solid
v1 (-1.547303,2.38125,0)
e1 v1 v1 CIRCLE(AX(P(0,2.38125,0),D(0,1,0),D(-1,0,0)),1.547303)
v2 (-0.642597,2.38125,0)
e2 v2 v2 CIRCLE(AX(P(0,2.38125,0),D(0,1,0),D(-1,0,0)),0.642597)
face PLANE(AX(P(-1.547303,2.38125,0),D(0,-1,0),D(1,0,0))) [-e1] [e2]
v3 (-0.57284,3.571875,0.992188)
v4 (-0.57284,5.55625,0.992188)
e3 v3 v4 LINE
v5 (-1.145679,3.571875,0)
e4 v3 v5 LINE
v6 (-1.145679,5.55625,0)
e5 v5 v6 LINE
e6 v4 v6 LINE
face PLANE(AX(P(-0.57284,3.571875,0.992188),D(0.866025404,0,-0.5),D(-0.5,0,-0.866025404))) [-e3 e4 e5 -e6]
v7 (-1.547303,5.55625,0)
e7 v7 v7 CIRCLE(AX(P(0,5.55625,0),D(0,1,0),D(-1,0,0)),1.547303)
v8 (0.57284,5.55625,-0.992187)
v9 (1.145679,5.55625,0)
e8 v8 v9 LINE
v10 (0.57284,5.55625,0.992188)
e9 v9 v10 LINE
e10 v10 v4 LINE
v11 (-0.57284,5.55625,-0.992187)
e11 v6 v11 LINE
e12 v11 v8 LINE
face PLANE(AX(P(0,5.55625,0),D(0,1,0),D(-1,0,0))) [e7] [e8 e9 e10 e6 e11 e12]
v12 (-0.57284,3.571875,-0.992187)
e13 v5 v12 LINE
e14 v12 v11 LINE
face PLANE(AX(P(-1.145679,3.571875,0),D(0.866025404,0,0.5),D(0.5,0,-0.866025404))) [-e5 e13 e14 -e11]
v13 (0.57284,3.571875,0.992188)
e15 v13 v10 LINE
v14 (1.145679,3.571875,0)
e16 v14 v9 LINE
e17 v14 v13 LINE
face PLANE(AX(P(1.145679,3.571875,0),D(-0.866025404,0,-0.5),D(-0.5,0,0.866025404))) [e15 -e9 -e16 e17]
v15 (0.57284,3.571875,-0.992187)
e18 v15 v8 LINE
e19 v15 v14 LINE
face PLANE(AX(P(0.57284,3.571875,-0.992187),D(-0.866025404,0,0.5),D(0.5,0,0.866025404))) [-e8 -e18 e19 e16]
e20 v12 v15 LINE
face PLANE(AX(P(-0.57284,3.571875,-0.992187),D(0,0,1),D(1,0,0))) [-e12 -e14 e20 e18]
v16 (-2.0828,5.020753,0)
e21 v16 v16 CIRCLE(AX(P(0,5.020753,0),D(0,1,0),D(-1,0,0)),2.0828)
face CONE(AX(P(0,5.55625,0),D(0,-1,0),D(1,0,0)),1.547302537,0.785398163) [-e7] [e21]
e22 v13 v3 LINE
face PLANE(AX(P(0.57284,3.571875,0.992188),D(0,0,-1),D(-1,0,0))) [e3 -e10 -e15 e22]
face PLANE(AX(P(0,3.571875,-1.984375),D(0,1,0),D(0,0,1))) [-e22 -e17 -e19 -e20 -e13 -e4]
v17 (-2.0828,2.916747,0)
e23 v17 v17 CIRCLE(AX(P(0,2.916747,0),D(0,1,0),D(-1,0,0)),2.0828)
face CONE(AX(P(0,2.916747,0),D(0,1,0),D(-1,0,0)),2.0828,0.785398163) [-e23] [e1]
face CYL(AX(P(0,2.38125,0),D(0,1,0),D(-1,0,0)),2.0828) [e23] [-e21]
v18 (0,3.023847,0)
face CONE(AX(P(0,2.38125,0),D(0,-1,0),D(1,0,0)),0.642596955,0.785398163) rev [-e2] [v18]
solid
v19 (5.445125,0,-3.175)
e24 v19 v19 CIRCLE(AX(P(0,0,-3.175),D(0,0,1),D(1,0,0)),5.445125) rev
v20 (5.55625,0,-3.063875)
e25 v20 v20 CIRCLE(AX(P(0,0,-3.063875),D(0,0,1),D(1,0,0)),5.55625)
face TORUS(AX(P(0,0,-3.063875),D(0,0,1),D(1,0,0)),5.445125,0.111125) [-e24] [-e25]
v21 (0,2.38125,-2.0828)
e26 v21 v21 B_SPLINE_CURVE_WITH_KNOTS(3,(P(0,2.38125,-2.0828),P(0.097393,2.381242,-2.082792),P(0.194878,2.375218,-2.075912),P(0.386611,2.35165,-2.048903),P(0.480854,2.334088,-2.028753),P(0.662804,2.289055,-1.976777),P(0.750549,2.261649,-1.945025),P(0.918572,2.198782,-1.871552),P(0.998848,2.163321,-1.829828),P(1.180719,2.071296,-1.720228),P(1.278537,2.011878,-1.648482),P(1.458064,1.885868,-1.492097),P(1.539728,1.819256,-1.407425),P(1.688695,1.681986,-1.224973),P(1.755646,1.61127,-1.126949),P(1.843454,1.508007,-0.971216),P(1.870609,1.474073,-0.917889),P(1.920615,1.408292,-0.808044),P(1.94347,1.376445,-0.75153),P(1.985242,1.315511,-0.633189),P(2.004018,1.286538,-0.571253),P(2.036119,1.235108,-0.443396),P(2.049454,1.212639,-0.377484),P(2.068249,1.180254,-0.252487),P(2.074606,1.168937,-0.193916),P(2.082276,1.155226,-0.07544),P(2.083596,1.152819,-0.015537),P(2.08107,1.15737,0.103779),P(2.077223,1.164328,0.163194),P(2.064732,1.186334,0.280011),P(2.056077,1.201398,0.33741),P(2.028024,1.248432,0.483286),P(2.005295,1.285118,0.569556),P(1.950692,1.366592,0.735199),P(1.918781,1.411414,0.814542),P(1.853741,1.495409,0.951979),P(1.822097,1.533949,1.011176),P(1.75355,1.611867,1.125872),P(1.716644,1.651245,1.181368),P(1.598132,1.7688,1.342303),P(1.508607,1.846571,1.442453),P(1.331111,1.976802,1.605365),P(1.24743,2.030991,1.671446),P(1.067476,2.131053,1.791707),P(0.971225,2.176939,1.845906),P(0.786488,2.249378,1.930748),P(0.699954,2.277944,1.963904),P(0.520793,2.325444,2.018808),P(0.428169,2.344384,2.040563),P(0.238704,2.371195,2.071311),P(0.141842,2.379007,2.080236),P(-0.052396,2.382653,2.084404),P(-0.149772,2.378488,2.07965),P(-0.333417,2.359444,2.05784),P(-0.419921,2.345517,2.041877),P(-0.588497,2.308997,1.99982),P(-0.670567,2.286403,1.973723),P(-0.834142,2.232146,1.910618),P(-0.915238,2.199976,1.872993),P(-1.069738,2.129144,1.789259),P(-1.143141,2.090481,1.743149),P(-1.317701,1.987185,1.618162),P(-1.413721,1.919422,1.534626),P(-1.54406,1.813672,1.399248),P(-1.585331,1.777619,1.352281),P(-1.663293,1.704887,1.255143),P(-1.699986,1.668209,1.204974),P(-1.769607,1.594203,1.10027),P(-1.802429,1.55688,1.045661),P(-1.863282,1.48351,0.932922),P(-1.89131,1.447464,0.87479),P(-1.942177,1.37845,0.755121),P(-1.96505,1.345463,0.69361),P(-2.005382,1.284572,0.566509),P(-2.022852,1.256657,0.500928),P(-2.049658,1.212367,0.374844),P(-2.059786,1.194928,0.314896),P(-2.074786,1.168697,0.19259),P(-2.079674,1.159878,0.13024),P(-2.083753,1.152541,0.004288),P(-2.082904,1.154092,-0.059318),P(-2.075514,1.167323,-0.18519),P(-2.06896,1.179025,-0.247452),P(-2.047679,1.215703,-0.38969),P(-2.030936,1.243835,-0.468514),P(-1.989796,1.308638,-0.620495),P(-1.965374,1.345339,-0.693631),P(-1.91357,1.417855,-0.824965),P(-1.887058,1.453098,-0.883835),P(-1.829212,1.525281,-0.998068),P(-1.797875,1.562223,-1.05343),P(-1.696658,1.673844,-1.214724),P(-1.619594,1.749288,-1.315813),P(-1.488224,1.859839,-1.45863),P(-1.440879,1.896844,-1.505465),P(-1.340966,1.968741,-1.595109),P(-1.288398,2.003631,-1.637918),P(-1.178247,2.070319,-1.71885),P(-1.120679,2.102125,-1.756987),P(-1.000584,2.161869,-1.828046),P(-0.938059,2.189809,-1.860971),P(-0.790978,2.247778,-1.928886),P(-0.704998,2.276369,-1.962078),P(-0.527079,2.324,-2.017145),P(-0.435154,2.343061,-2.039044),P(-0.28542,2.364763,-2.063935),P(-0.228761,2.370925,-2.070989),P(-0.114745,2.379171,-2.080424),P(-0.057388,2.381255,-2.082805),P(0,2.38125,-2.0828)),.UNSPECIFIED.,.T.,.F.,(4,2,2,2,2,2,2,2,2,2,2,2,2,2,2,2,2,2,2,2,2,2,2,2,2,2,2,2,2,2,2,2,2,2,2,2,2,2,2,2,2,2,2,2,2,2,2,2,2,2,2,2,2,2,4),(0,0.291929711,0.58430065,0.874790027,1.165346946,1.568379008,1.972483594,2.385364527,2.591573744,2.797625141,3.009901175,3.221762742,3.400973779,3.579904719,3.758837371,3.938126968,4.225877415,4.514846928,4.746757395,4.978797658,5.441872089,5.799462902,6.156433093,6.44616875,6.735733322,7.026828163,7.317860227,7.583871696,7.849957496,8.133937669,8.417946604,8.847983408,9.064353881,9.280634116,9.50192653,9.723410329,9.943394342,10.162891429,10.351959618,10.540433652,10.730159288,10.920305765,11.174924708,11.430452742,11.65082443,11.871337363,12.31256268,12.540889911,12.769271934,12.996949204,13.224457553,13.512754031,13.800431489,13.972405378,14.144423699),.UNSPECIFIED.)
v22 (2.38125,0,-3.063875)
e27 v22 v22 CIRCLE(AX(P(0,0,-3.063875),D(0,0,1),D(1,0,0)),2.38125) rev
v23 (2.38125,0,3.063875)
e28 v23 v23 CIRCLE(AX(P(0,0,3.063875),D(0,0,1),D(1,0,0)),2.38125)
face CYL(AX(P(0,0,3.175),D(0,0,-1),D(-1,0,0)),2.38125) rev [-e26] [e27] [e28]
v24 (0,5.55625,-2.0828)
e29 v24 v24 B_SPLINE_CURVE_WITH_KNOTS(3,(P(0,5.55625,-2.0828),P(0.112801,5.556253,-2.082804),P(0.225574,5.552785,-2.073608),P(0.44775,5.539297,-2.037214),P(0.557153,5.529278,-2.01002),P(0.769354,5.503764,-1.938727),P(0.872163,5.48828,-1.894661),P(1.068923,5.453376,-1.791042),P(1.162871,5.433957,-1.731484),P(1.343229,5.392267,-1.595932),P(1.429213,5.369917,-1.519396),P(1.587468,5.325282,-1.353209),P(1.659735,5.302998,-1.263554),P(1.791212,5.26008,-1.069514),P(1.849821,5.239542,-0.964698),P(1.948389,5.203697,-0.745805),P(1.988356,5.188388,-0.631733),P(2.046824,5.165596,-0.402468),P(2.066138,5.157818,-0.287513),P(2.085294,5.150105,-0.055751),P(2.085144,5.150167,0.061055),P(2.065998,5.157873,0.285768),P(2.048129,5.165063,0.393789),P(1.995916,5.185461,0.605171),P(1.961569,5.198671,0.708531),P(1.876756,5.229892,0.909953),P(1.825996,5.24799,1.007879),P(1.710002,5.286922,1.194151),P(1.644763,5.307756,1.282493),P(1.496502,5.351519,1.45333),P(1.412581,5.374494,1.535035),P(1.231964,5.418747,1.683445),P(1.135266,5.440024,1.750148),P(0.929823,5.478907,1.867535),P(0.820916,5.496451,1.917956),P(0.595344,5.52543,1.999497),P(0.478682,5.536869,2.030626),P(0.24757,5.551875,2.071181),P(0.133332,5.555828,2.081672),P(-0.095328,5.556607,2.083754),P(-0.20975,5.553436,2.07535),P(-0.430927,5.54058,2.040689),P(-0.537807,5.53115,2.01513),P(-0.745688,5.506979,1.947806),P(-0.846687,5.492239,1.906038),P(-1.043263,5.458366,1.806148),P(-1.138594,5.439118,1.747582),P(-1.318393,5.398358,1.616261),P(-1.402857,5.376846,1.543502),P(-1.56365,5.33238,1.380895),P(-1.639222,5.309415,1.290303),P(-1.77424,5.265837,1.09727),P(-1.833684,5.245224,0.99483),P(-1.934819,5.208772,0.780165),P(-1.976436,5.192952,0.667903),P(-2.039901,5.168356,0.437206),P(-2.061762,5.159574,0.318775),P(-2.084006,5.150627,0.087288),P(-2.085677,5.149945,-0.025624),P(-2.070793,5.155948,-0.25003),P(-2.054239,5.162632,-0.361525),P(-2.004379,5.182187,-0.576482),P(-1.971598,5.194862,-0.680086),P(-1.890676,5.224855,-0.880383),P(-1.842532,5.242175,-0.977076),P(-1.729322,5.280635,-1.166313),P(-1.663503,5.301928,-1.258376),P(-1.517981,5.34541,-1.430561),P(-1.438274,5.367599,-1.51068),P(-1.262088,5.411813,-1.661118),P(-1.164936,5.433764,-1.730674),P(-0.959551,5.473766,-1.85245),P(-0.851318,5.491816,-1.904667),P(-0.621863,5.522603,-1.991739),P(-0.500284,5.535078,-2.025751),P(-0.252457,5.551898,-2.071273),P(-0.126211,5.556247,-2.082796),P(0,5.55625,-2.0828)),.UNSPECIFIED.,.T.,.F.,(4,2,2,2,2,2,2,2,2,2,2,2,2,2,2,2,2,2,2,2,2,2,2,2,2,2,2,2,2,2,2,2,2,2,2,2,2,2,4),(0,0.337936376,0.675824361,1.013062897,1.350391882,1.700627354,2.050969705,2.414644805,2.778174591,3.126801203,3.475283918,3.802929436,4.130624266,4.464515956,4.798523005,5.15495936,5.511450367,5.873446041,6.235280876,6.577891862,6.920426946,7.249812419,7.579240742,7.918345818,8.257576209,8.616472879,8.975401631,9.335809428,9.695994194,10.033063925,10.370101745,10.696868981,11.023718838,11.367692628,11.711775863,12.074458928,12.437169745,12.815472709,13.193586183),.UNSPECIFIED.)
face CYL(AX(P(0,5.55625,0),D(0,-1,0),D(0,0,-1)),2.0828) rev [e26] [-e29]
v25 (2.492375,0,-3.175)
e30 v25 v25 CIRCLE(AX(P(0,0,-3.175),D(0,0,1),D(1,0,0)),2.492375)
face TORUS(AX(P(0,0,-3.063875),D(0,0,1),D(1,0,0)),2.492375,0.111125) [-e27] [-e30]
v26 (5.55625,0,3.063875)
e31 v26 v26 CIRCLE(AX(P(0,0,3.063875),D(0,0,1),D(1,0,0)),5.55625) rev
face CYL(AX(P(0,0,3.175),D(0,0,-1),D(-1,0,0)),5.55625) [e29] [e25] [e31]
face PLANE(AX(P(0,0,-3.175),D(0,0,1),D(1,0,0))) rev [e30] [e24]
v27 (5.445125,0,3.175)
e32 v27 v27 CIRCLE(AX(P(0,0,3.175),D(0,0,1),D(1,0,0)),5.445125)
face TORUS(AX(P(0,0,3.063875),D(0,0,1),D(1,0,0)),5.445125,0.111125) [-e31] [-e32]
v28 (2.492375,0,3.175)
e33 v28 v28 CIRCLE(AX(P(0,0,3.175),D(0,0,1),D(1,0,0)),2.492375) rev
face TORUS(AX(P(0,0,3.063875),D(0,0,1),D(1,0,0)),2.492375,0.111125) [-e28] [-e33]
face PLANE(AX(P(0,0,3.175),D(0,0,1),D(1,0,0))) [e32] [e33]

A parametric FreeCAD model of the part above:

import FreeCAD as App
import Part
import Sketcher
Q = App.Units.Quantity


def edges_at(feature, points):
    """Names of the edges that pass closest to the given points."""
    edges = feature.Shape.Edges
    near = lambda p: min(range(len(edges)), key=lambda i: edges[i].distToShape(Part.Vertex(*p))[0])
    return sorted({f"Edge{near(p) + 1}" for p in points})


def add_polygon(sketch, points):
    """Adds a closed chain of lines whose ends are joined by coincident constraints."""
    first, n = sketch.GeometryCount, len(points)
    for a, b in zip(points, points[1:] + points[:1]):
        sketch.addGeometry(Part.LineSegment(App.Vector(*a, 0), App.Vector(*b, 0)), False)
    for i in range(n):
        sketch.addConstraint(Sketcher.Constraint("Coincident", first + i, 2, first + (i + 1) % n, 1))

doc = App.newDocument("Part")
params = doc.addObject("Spreadsheet::Sheet", "Params")
for row, (alias, value) in enumerate([
    ("sketch1_diameter", "0.4375 in"),
    ("sketch1_diameter2", "0.1875 in"),
    ("pad1_length", "0.25 in"),
    ("sketch2_diameter", "0.164 in"),
    ("fillet_radius", "0.111125 mm"),
    ("revolution_angle", "360 deg"),
    ("pocket2_length", "0.078125 in"),
], start=1):
    params.set(f"A{row}", alias)
    params.set(f"B{row}", "=" + value)
    params.setAlias(f"B{row}", alias)

body = doc.addObject("PartDesign::Body", "Body")

sketch1 = body.newObject("Sketcher::SketchObject", "Sketch")
sketch1.AttachmentSupport = (doc.getObject("XY_Plane"), [""])
sketch1.MapMode = "FlatFace"
sketch1.addGeometry(Part.Circle(App.Vector(0, 0, 0), App.Vector(0, 0, 1), 5.55625), False)
sketch1.addGeometry(Part.Circle(App.Vector(0, 0, 0), App.Vector(0, 0, 1), 2.38125), False)
sketch1.addConstraint(Sketcher.Constraint("Coincident", 0, 3, -1, 1))
sketch1.addConstraint(Sketcher.Constraint("Coincident", 1, 3, -1, 1))
sketch1.addConstraint(Sketcher.Constraint("Diameter", 0, Q("0.4375 in")))
sketch1.addConstraint(Sketcher.Constraint("Diameter", 1, Q("0.1875 in")))
sketch1.setExpression("Constraints[2]", "Params.sketch1_diameter")
sketch1.setExpression("Constraints[3]", "Params.sketch1_diameter2")
pad1 = body.newObject("PartDesign::Pad", "Pad")
pad1.Profile = sketch1
pad1.setExpression("Length", "Params.pad1_length")
pad1.Midplane = True

sketch2 = body.newObject("Sketcher::SketchObject", "Sketch001")
sketch2.AttachmentSupport = (doc.getObject("XZ_Plane"), [""])
sketch2.MapMode = "FlatFace"
sketch2.addGeometry(Part.Circle(App.Vector(0, 0, 0), App.Vector(0, 0, 1), 2.0828), False)
sketch2.addConstraint(Sketcher.Constraint("Coincident", 0, 3, -1, 1))
sketch2.addConstraint(Sketcher.Constraint("Diameter", 0, Q("0.164 in")))
sketch2.setExpression("Constraints[1]", "Params.sketch2_diameter")
pocket1 = body.newObject("PartDesign::Pocket", "Pocket")
pocket1.Profile = sketch2
pocket1.Type = "ThroughAll"
doc.recompute()

fillet = body.newObject("PartDesign::Fillet", "Fillet")
fillet.Base = (pocket1, edges_at(pocket1, [
    (-5.556, 0, -3.175),
    (-5.556, 0, 3.175),
    (-2.381, 0, -3.175),
    (-2.381, 0, 3.175),
]))
fillet.setExpression("Radius", "Params.fillet_radius")
body2 = doc.addObject("PartDesign::Body", "Body001")

sketch3 = body2.newObject("Sketcher::SketchObject", "Sketch002")
sketch3.AttachmentSupport = (doc.getObject("XY_Plane001"), [""])
sketch3.MapMode = "FlatFace"
add_polygon(sketch3, [(-1.547303, 2.38125), (-0.642597, 2.38125), (0, 3.023847), (0, 5.55625), (-1.547303, 5.55625), (-2.0828, 5.020753), (-2.0828, 2.916747)])
sketch3.addConstraint(Sketcher.Constraint("Horizontal", 0))
sketch3.addConstraint(Sketcher.Constraint("Vertical", 2))
sketch3.addConstraint(Sketcher.Constraint("Horizontal", 3))
sketch3.addConstraint(Sketcher.Constraint("Vertical", 5))
sketch3.addConstraint(Sketcher.Constraint("PointOnObject", 1, 2, -2))
sketch3.addConstraint(Sketcher.Constraint("Parallel", 1, 4))
sketch3.addConstraint(Sketcher.Constraint("Perpendicular", 4, 6))
sketch3.addConstraint(Sketcher.Constraint("Vertical", 3, 2, 6, 2))
sketch3.addConstraint(Sketcher.Constraint("Equal", 4, 6))
sketch3.addConstraint(Sketcher.Constraint("DistanceY", -1, 1, 0, 2, Q("0.09375 in")))
sketch3.addConstraint(Sketcher.Constraint("DistanceY", -1, 1, 2, 2, Q("0.21875 in")))
sketch3.addConstraint(Sketcher.Constraint("DistanceX", 4, 2, -1, 1, Q("0.082 in")))
sketch3.addConstraint(Sketcher.Constraint("DistanceY", 5, 2, 1, 2, 0.107099))
sketch3.addConstraint(Sketcher.Constraint("Distance", 1, 0.908769))
revolution = body2.newObject("PartDesign::Revolution", "Revolution")
revolution.Profile = sketch3
revolution.ReferenceAxis = (sketch3, ["V_Axis"])
revolution.setExpression("Angle", "Params.revolution_angle")

sketch4 = body2.newObject("Sketcher::SketchObject", "Sketch003")
sketch4.AttachmentSupport = (doc.getObject("XZ_Plane001"), [""])
sketch4.MapMode = "FlatFace"
sketch4.AttachmentOffset = App.Placement(App.Vector(0, 0, -0.21875 * 25.4), App.Rotation())
add_polygon(sketch4, [(1.145679, 0), (0.57284, 0.992188), (-0.57284, 0.992188), (-1.145679, 0), (-0.57284, -0.992188), (0.57284, -0.992188)])
sketch4.addConstraint(Sketcher.Constraint("Horizontal", 1))
sketch4.addConstraint(Sketcher.Constraint("Horizontal", 4))
sketch4.addConstraint(Sketcher.Constraint("Symmetric", 0, 2, 3, 2, -1, 1))
sketch4.addConstraint(Sketcher.Constraint("Symmetric", 2, 2, 5, 2, -1, 1))
sketch4.addConstraint(Sketcher.Constraint("PointOnObject", 2, 2, -1))
sketch4.addConstraint(Sketcher.Constraint("Parallel", 2, 5))
sketch4.addConstraint(Sketcher.Constraint("Vertical", 1, 2, 3, 2))
sketch4.addConstraint(Sketcher.Constraint("Angle", 0, Q("120 deg")))
sketch4.addConstraint(Sketcher.Constraint("DistanceY", 3, 2, 1, 2, Q("0.078125 in")))
sketch4.addConstraint(Sketcher.Constraint("DistanceX", 1, 2, 1, 1, 1.145679))
pocket2 = body2.newObject("PartDesign::Pocket", "Pocket001")
pocket2.Profile = sketch4
pocket2.setExpression("Length", "Params.pocket2_length")
pocket2.Reversed = True

doc.recompute()
